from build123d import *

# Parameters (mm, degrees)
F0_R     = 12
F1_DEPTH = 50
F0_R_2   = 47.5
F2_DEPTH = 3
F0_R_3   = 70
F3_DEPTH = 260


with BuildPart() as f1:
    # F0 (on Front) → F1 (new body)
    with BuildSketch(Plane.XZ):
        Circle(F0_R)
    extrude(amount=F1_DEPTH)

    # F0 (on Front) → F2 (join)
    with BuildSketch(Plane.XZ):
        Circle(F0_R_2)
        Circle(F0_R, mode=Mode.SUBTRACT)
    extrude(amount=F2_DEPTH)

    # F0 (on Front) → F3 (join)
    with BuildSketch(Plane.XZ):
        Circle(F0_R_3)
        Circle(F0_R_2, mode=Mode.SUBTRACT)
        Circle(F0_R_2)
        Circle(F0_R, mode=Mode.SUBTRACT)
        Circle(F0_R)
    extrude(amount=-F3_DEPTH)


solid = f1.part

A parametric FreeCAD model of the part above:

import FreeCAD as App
import Part
import Sketcher
Q = App.Units.Quantity

doc = App.newDocument("Part")
body = doc.addObject("PartDesign::Body", "Body")

# Sketch on XZ plane
sketch1 = doc.addObject("Sketcher::SketchObject", "Sketch")
body.addObject(sketch1)
sketch1.AttachmentSupport = (doc.XZ_Plane, [""])
sketch1.MapMode = "FlatFace"
sketch1.addGeometry(Part.Circle(App.Vector(0, 0, 0), App.Vector(0, 0, 1), 12), False)
sketch1.addConstraint([
    Sketcher.Constraint("Coincident", 0, 3, -1, 1),
    Sketcher.Constraint("Diameter", 0, Q("24 mm")),
])
pad1 = doc.addObject("PartDesign::Pad", "Pad")
body.addObject(pad1)
pad1.Profile = sketch1
pad1.Length = 50

# Sketch on XZ plane
sketch2 = doc.addObject("Sketcher::SketchObject", "Sketch001")
body.addObject(sketch2)
sketch2.AttachmentSupport = (doc.XZ_Plane, [""])
sketch2.MapMode = "FlatFace"
sketch2.addGeometry([
    Part.Circle(App.Vector(0, 0, 0), App.Vector(0, 0, 1), 47.5),
    Part.Circle(App.Vector(0, 0, 0), App.Vector(0, 0, 1), 12),
], False)
sketch2.addConstraint([
    Sketcher.Constraint("Coincident", 0, 3, -1, 1),
    Sketcher.Constraint("Coincident", 1, 3, -1, 1),
    Sketcher.Constraint("Diameter", 0, Q("95 mm")),
    Sketcher.Constraint("Diameter", 1, Q("24 mm")),
])
pad2 = doc.addObject("PartDesign::Pad", "Pad001")
body.addObject(pad2)
pad2.Profile = sketch2
pad2.Length = 3

# Sketch on XZ plane
sketch3 = doc.addObject("Sketcher::SketchObject", "Sketch002")
body.addObject(sketch3)
sketch3.AttachmentSupport = (doc.XZ_Plane, [""])
sketch3.MapMode = "FlatFace"
sketch3.addGeometry(Part.Circle(App.Vector(0, 0, 0), App.Vector(0, 0, 1), 70), False)
sketch3.addConstraint([
    Sketcher.Constraint("Coincident", 0, 3, -1, 1),
    Sketcher.Constraint("Diameter", 0, Q("140 mm")),
])
pad3 = doc.addObject("PartDesign::Pad", "Pad002")
body.addObject(pad3)
pad3.Profile = sketch3
pad3.Length = 260
pad3.Reversed = True

doc.recompute()
